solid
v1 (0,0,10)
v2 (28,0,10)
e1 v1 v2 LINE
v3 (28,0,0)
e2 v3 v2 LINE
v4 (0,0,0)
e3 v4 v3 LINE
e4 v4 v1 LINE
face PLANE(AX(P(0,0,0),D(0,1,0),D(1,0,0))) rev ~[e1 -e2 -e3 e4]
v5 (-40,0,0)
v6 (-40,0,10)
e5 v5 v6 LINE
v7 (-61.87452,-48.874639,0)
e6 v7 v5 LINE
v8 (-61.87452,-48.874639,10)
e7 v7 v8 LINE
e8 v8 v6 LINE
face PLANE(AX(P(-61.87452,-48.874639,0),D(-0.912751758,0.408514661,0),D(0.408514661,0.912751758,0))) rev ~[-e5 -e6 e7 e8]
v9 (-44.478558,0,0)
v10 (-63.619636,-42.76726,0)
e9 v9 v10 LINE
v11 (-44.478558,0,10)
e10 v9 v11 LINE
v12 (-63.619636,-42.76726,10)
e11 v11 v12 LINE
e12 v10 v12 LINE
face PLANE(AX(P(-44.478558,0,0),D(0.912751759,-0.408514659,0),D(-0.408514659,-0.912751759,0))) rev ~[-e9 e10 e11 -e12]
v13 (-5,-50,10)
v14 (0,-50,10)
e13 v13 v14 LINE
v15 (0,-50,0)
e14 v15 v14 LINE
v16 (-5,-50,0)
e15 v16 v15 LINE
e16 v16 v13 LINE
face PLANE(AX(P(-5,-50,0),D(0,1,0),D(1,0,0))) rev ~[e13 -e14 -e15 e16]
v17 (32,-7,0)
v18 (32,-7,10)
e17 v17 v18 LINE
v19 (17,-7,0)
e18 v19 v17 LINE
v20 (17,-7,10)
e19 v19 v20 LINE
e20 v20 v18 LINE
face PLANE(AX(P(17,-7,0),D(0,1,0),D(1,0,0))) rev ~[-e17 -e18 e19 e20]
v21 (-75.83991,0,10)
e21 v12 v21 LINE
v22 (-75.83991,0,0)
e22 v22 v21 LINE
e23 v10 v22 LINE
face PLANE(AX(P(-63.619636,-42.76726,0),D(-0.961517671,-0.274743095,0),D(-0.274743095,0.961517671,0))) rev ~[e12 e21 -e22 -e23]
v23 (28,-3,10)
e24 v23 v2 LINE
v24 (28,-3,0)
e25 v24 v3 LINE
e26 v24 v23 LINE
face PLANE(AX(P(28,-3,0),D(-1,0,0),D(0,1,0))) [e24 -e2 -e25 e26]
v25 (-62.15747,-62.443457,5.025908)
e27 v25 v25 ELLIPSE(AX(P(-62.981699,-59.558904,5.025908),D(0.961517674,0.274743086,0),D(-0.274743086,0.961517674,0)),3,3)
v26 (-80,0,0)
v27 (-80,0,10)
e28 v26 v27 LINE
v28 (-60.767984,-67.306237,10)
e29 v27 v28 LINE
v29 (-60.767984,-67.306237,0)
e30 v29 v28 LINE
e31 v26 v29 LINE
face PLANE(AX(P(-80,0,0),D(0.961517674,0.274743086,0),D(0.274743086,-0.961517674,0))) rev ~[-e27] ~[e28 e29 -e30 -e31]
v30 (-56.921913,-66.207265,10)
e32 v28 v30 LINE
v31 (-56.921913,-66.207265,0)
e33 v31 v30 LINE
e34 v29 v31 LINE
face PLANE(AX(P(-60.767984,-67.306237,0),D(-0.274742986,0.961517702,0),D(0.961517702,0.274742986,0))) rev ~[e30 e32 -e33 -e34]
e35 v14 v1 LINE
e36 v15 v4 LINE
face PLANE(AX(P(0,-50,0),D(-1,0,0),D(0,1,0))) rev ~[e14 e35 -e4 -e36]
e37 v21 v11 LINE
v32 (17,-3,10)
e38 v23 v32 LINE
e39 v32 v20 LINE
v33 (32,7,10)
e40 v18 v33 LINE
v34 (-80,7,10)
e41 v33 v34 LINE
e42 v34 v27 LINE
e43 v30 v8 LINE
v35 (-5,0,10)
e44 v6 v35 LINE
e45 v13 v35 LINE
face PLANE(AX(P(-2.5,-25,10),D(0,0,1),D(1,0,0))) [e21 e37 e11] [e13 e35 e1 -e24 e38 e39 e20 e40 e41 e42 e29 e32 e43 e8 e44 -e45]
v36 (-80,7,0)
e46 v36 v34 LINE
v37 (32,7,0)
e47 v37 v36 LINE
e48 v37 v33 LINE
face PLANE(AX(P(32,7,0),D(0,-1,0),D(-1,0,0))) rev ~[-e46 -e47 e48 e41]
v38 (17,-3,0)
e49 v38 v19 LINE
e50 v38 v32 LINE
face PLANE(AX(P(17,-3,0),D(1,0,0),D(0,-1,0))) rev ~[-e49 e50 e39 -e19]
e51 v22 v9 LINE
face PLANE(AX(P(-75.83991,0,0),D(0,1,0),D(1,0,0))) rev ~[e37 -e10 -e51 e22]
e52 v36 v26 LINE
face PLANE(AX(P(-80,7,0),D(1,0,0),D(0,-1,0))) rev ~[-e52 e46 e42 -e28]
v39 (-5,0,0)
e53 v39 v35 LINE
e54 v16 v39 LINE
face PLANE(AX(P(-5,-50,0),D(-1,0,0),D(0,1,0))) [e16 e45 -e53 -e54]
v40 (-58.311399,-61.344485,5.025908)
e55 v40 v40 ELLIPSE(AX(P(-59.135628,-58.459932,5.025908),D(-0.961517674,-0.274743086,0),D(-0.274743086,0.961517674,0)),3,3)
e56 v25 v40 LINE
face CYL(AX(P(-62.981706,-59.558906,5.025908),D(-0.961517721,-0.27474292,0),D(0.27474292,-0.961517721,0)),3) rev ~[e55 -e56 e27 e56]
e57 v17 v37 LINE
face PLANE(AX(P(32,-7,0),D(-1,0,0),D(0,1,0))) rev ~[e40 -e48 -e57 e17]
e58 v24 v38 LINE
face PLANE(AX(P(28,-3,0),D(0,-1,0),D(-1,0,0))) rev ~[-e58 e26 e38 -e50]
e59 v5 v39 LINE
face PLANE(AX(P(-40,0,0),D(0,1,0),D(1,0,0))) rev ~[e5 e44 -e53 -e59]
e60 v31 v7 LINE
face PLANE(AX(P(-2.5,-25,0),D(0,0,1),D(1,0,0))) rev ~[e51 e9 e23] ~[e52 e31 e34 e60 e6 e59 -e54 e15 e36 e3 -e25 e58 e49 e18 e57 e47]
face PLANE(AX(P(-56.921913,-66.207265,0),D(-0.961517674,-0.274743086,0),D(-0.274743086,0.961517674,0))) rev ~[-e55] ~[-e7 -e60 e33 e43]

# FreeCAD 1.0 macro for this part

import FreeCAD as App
import Part
import Sketcher
from FreeCAD import Vector
Q = App.Units.Quantity

doc = App.newDocument("Part")
body = doc.addObject("PartDesign::Body", "Body")

# Sketch on XY plane
sketch1 = doc.addObject("Sketcher::SketchObject", "Sketch")
body.addObject(sketch1)
sketch1.AttachmentSupport = (doc.XY_Plane, [""])
sketch1.MapMode = "FlatFace"
sketch1.addGeometry([
    Part.LineSegment(Vector(-5, 0, 0), Vector(-5, -50, 0)),  # 0
    Part.LineSegment(Vector(-5, -50, 0), Vector(0, -50, 0)),  # 1
    Part.LineSegment(Vector(0, -50, 0), Vector(0, 0, 0)),  # 2
    Part.LineSegment(Vector(0, 0, 0), Vector(28, 0, 0)),  # 3
    Part.LineSegment(Vector(28, 0, 0), Vector(28, -3, 0)),  # 4
    Part.LineSegment(Vector(28, -3, 0), Vector(17, -3, 0)),  # 5
    Part.LineSegment(Vector(17, -3, 0), Vector(17, -7, 0)),  # 6
    Part.LineSegment(Vector(17, -7, 0), Vector(32, -7, 0)),  # 7
    Part.LineSegment(Vector(32, -7, 0), Vector(32, 7, 0)),  # 8
    Part.LineSegment(Vector(32, 7, 0), Vector(-80, 7, 0)),  # 9
    Part.LineSegment(Vector(-80, 7, 0), Vector(-80, 0, 0)),  # 10
    Part.LineSegment(Vector(-80, 0, 0), Vector(-60.767984, -67.306237, 0)),  # 11
    Part.LineSegment(Vector(-60.767984, -67.306237, 0), Vector(-56.921913, -66.207265, 0)),  # 12
    Part.LineSegment(Vector(-56.921913, -66.207265, 0), Vector(-61.87452, -48.874639, 0)),  # 13
    Part.LineSegment(Vector(-61.87452, -48.874639, 0), Vector(-40, 0, 0)),  # 14
    Part.LineSegment(Vector(-40, 0, 0), Vector(-5, 0, 0)),  # 15
    Part.LineSegment(Vector(-75.83991, 0, 0), Vector(-44.478558, 0, 0)),  # 16
    Part.LineSegment(Vector(-44.478558, 0, 0), Vector(-63.619636, -42.76726, 0)),  # 17
    Part.LineSegment(Vector(-63.619636, -42.76726, 0), Vector(-75.83991, 0, 0)),  # 18
], False)
sketch1.addConstraint([
    Sketcher.Constraint("Coincident", 0, 2, 1, 1),
    Sketcher.Constraint("Coincident", 1, 2, 2, 1),
    Sketcher.Constraint("Coincident", 2, 2, 3, 1),
    Sketcher.Constraint("Coincident", 3, 2, 4, 1),
    Sketcher.Constraint("Coincident", 4, 2, 5, 1),
    Sketcher.Constraint("Coincident", 5, 2, 6, 1),
    Sketcher.Constraint("Coincident", 6, 2, 7, 1),
    Sketcher.Constraint("Coincident", 7, 2, 8, 1),
    Sketcher.Constraint("Coincident", 8, 2, 9, 1),
    Sketcher.Constraint("Coincident", 9, 2, 10, 1),
    Sketcher.Constraint("Coincident", 10, 2, 11, 1),
    Sketcher.Constraint("Coincident", 11, 2, 12, 1),
    Sketcher.Constraint("Coincident", 12, 2, 13, 1),
    Sketcher.Constraint("Coincident", 13, 2, 14, 1),
    Sketcher.Constraint("Coincident", 14, 2, 15, 1),
    Sketcher.Constraint("Coincident", 15, 2, 0, 1),
    Sketcher.Constraint("Coincident", 16, 2, 17, 1),
    Sketcher.Constraint("Coincident", 17, 2, 18, 1),
    Sketcher.Constraint("Coincident", 18, 2, 16, 1),
    Sketcher.Constraint("Vertical", 0),
    Sketcher.Constraint("Horizontal", 1),
    Sketcher.Constraint("Vertical", 2),
    Sketcher.Constraint("Horizontal", 3),
    Sketcher.Constraint("Vertical", 4),
    Sketcher.Constraint("Horizontal", 5),
    Sketcher.Constraint("Vertical", 6),
    Sketcher.Constraint("Horizontal", 7),
    Sketcher.Constraint("Vertical", 8),
    Sketcher.Constraint("Horizontal", 9),
    Sketcher.Constraint("Vertical", 10),
    Sketcher.Constraint("Horizontal", 15),
    Sketcher.Constraint("Horizontal", 16),
    Sketcher.Constraint("Coincident", 2, 2, -1, 1),
    Sketcher.Constraint("PointOnObject", 10, 2, -1),
    Sketcher.Constraint("PointOnObject", 14, 2, -1),
    Sketcher.Constraint("PointOnObject", 16, 2, -1),
    Sketcher.Constraint("Perpendicular", 11, 12),
    Sketcher.Constraint("Perpendicular", 12, 13),
    Sketcher.Constraint("Parallel", 14, 17),
    Sketcher.Constraint("Parallel", 13, 18),
    Sketcher.Constraint("DistanceX", 1, 1, 1, 2, Q("5 mm")),
    Sketcher.Constraint("DistanceX", 3, 1, 3, 2, Q("28 mm")),
    Sketcher.Constraint("DistanceX", 5, 2, 5, 1, Q("11 mm")),
    Sketcher.Constraint("DistanceX", 7, 1, 7, 2, Q("15 mm")),
    Sketcher.Constraint("DistanceX", 9, 2, 9, 1, Q("112 mm")),
    Sketcher.Constraint("DistanceX", 15, 1, 15, 2, Q("35 mm")),
    Sketcher.Constraint("DistanceY", 0, 2, 0, 1, Q("50 mm")),
    Sketcher.Constraint("DistanceY", 4, 2, 4, 1, Q("3 mm")),
    Sketcher.Constraint("DistanceY", 6, 2, 6, 1, Q("4 mm")),
    Sketcher.Constraint("DistanceY", 8, 1, 8, 2, Q("14 mm")),
    Sketcher.Constraint("Distance", 11, Q("70 mm")),
    Sketcher.Constraint("Distance", 12, Q("4 mm")),
    Sketcher.Constraint("Distance", 13, Q("18.026321 mm")),
    Sketcher.Constraint("DistanceX", 16, 1, 16, 2, Q("31.361352 mm")),
    Sketcher.Constraint("DistanceX", 13, 2, -1, 1, Q("61.87452 mm")),
    Sketcher.Constraint("DistanceX", 18, 2, -1, 1, Q("75.83991 mm")),
])
pad1 = doc.addObject("PartDesign::Pad", "Pad")
body.addObject(pad1)
pad1.Profile = sketch1
pad1.Length = 10

# Sketch on an angled plane
sketch2 = doc.addObject("Sketcher::SketchObject", "Sketch001")
body.addObject(sketch2)
sketch2.Placement = App.Placement(Vector(-73.961299, -21.133627, 0), App.Rotation(Vector(0.27474292, -0.961517721, 0), Vector(0, 0, 1), Vector(-0.961517721, -0.27474292, 0), "ZXY"))
sketch2.addGeometry(Part.Circle(Vector(39.963152, 5.025908, 0), Vector(0, 0, 1), 3), False)
sketch2.addConstraint([
    Sketcher.Constraint("Diameter", 0, Q("6 mm")),
    Sketcher.Constraint("DistanceX", -1, 1, 0, 3, Q("39.963152 mm")),
    Sketcher.Constraint("DistanceY", -1, 1, 0, 3, Q("5.025908 mm")),
])
pocket1 = doc.addObject("PartDesign::Pocket", "Pocket")
body.addObject(pocket1)
pocket1.Profile = sketch2
pocket1.Length = 10

doc.recompute()
